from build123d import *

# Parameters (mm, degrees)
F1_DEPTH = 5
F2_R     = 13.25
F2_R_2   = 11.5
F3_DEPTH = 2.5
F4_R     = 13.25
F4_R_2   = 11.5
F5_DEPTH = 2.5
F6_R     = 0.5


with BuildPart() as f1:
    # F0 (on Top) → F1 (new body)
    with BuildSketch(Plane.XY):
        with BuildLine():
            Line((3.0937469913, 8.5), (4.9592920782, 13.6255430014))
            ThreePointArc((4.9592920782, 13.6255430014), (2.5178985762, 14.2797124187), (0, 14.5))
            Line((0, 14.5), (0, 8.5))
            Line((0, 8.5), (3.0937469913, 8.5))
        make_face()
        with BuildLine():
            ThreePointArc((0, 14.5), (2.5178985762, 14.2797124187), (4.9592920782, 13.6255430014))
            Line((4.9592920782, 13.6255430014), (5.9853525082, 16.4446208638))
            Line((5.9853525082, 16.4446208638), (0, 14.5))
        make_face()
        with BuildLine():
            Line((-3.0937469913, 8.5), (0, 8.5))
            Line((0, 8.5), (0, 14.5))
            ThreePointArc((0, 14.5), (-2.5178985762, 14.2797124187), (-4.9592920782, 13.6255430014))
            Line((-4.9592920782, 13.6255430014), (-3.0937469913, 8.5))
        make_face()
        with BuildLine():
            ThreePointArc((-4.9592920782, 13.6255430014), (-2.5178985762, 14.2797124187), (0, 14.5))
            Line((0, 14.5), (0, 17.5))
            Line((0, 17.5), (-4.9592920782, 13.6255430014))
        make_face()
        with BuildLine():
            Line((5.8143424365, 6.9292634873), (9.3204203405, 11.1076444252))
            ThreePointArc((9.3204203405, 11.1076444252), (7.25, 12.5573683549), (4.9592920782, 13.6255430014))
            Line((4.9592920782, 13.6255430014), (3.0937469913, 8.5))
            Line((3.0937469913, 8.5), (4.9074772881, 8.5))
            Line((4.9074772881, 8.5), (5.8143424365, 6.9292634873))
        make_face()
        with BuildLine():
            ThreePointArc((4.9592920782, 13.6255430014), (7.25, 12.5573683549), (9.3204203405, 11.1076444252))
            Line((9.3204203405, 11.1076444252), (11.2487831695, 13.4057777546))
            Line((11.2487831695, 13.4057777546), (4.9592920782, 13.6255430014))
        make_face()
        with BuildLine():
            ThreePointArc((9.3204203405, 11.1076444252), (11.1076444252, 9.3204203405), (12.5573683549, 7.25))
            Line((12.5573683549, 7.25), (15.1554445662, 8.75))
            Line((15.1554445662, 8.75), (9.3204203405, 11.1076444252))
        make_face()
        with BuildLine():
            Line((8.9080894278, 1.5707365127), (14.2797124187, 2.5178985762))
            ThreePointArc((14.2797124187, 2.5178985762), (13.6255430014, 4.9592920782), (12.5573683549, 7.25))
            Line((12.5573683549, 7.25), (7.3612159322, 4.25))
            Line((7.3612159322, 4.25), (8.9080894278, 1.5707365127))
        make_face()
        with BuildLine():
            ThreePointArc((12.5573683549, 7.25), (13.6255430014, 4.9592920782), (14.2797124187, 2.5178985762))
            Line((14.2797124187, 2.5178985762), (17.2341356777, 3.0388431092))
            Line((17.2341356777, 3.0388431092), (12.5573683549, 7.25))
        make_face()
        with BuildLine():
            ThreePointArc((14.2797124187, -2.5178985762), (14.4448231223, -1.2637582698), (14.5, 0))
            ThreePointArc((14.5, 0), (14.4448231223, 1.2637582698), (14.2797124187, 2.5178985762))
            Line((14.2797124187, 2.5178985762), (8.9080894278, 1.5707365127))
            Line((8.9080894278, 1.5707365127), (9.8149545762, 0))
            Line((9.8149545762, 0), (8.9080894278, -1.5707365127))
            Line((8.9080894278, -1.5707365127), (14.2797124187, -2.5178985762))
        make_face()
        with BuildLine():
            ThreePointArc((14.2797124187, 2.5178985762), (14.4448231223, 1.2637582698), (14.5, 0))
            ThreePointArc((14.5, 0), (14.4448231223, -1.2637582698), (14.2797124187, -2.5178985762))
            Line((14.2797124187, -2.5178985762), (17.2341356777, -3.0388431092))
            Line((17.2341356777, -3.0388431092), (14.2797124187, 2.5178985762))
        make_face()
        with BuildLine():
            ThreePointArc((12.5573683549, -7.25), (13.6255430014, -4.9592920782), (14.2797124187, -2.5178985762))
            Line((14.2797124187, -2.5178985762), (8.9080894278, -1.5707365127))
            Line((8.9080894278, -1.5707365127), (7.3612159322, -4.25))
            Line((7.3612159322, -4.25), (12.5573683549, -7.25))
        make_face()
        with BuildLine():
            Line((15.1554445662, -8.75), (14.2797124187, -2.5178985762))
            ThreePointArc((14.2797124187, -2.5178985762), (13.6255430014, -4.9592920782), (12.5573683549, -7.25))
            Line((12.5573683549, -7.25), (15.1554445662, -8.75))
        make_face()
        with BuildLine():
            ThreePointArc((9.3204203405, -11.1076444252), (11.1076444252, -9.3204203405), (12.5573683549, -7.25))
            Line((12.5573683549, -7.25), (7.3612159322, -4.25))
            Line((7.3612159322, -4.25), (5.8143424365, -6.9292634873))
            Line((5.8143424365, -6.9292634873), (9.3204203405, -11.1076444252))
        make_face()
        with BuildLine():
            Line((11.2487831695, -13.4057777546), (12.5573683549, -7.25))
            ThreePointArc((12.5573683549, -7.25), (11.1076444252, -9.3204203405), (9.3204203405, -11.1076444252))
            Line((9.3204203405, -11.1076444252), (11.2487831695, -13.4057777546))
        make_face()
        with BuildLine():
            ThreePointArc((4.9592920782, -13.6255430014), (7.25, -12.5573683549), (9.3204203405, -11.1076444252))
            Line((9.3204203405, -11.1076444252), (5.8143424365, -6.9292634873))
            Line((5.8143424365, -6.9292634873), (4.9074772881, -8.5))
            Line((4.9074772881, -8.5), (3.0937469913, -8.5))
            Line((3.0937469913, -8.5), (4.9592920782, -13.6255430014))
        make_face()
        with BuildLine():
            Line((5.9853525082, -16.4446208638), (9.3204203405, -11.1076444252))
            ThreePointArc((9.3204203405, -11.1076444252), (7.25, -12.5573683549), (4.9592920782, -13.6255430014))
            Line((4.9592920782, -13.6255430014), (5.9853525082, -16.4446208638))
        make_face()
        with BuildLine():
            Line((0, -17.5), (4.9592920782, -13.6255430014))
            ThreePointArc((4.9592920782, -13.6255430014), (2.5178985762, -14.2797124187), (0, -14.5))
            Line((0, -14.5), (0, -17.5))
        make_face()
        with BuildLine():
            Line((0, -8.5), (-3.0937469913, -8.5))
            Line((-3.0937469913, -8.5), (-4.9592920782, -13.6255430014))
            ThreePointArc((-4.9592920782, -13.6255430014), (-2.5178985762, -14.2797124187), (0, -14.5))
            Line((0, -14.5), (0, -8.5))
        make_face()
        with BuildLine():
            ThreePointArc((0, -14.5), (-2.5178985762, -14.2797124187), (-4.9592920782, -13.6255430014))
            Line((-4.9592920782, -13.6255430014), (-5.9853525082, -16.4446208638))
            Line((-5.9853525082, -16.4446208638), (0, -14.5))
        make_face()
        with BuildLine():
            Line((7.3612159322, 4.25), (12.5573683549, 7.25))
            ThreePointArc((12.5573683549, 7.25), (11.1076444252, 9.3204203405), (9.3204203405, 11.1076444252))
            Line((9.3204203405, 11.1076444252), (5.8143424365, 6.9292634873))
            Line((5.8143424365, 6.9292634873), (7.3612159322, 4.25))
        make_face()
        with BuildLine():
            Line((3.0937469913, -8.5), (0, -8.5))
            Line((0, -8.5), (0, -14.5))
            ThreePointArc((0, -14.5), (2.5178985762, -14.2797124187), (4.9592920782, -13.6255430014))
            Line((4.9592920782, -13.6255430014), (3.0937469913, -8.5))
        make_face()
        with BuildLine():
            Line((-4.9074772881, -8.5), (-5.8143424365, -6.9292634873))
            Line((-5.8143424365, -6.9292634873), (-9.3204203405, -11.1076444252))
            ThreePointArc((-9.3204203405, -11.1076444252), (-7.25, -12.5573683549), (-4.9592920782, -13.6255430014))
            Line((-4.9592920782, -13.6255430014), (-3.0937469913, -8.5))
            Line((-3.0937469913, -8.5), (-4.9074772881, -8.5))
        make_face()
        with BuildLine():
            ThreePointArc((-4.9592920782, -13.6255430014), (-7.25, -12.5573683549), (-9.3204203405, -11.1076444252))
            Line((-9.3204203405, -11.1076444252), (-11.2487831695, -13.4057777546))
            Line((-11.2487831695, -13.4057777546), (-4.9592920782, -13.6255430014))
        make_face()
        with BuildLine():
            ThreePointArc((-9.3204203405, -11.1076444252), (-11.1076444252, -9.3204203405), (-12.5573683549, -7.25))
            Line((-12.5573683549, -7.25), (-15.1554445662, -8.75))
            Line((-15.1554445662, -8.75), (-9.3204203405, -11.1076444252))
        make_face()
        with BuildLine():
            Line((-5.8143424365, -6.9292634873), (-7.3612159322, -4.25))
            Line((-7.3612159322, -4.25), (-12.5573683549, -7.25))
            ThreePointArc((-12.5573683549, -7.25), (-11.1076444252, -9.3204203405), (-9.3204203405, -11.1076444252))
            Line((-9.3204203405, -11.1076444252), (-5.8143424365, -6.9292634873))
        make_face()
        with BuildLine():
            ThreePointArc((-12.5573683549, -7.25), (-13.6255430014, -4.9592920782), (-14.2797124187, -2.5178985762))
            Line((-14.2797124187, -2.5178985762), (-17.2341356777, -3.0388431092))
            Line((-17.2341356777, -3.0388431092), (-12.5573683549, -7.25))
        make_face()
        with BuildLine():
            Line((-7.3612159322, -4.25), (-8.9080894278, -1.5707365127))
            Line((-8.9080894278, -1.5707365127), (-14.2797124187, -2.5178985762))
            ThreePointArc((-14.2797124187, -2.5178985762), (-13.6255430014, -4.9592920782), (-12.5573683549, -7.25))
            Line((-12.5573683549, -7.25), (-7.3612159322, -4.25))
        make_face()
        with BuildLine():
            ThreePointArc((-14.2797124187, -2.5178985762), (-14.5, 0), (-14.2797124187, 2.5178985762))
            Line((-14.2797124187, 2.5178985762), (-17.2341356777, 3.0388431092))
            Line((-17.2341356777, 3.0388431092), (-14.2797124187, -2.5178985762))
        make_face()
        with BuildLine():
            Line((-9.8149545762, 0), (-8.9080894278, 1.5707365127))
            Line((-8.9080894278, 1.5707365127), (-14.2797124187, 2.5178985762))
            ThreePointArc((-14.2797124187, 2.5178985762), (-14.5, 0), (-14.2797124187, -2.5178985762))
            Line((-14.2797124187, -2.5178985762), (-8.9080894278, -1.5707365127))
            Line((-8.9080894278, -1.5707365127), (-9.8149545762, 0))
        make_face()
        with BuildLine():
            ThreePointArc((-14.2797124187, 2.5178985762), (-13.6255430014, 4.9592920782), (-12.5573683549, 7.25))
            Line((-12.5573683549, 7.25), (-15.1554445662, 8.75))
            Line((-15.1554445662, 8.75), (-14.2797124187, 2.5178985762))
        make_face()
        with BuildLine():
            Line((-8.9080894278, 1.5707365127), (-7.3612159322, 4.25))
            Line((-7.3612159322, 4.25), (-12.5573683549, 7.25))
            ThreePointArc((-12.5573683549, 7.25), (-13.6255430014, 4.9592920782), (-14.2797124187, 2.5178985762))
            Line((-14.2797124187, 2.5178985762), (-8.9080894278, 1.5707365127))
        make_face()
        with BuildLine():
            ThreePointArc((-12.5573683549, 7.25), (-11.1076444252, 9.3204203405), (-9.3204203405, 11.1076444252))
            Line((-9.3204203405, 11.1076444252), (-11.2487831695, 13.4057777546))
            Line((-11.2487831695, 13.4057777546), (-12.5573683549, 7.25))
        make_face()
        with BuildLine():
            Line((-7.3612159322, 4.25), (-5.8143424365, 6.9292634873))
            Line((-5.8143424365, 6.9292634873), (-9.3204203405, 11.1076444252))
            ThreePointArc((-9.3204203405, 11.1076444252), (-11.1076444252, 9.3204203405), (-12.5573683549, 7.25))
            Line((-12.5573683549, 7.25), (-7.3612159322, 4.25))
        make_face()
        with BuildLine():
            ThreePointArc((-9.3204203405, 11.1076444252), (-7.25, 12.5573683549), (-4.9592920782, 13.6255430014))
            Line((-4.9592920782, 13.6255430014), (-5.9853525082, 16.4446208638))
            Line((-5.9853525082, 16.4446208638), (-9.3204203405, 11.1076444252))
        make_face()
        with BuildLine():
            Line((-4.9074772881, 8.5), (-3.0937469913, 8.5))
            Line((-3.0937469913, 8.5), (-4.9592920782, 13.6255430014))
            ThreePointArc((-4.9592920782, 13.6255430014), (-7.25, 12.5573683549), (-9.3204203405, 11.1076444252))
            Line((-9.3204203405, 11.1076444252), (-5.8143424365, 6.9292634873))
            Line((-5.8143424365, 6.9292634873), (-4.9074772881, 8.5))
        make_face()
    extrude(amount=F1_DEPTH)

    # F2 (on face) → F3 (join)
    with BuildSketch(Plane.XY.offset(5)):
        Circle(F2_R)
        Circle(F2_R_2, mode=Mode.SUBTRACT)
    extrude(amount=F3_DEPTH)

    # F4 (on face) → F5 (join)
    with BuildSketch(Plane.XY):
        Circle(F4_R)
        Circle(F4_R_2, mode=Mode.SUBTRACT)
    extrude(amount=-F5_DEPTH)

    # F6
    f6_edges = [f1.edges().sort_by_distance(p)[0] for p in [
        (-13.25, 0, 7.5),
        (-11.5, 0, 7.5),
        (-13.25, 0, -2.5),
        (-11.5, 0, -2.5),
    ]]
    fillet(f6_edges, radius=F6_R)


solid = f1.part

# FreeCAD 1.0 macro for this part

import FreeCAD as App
import Part
import Sketcher
from FreeCAD import Vector
Q = App.Units.Quantity


def edges_at(feature, points):
    """Names of the edges that pass closest to the given points."""
    edges = feature.Shape.Edges
    near = lambda p: min(range(len(edges)), key=lambda i: edges[i].distToShape(Part.Vertex(*p))[0])
    return sorted({f"Edge{near(p) + 1}" for p in points})


def add_polygon(sketch, points):
    """Adds a closed chain of lines whose ends are joined by coincident constraints."""
    first, n = sketch.GeometryCount, len(points)
    for a, b in zip(points, points[1:] + points[:1]):
        sketch.addGeometry(Part.LineSegment(App.Vector(*a, 0), App.Vector(*b, 0)), False)
    for i in range(n):
        sketch.addConstraint(Sketcher.Constraint("Coincident", first + i, 2, first + (i + 1) % n, 1))

doc = App.newDocument("Part")
params = doc.addObject("Spreadsheet::Sheet", "Params")
for row, (alias, value) in enumerate([
    ("sketch1_height", "3 mm"),
    ("sketch1_length", "3 mm"),
    ("pad1_length", "5 mm"),
    ("sketch2_diameter", "23 mm"),
    ("sketch2_diameter2", "26.5 mm"),
    ("pad2_length", "2.5 mm"),
    ("sketch3_diameter", "23 mm"),
    ("sketch3_diameter2", "26.5 mm"),
    ("pad3_length", "2.5 mm"),
    ("fillet_radius", "0.5 mm"),
], start=1):
    params.set(f"A{row}", alias)
    params.set(f"B{row}", "=" + value)
    params.setAlias(f"B{row}", alias)

body = doc.addObject("PartDesign::Body", "Body")

# Sketch on XY plane
sketch1 = body.newObject("Sketcher::SketchObject", "Sketch")
sketch1.AttachmentSupport = (doc.getObject("XY_Plane"), [""])
sketch1.MapMode = "FlatFace"
add_polygon(sketch1, [(5, 13.6), (6, 16.4), (0, 14.5), (0, 17.5), (-5, 13.6), (-6, 16.4), (-9.3, 11.1), (-11.2, 13.4), (-12.6, 7.2), (-15.2, 8.8), (-14.3, 2.5), (-17.2, 3), (-14.3, -2.5), (-17.2, -3), (-12.6, -7.2), (-15.2, -8.8), (-9.3, -11.1), (-11.2, -13.4), (-5, -13.6), (-6, -16.4), (0, -14.5), (0, -17.5), (5, -13.6), (6, -16.4), (9.3, -11.1), (11.2, -13.4), (12.6, -7.2), (15.2, -8.8), (14.3, -2.5), (17.2, -3), (14.3, 2.5), (17.2, 3), (12.6, 7.2), (15.2, 8.8), (9.3, 11.1), (11.2, 13.4)])  # lines 0-35
add_polygon(sketch1, [(4.9, 8.5), (5.8, 6.9), (7.4, 4.2), (8.9, 1.6), (9.8, 0), (8.9, -1.6), (7.4, -4.2), (5.8, -6.9), (4.9, -8.5), (-4.9, -8.5), (-5.8, -6.9), (-7.4, -4.2), (-8.9, -1.6), (-9.8, 0), (-8.9, 1.6), (-7.4, 4.2), (-5.8, 6.9), (-4.9, 8.5)])  # lines 36-53
sketch1.addConstraint(Sketcher.Constraint("Vertical", 2))
sketch1.addConstraint(Sketcher.Constraint("Vertical", 20))
sketch1.addConstraint(Sketcher.Constraint("Horizontal", 44))
sketch1.addConstraint(Sketcher.Constraint("Horizontal", 53))
sketch1.addConstraint(Sketcher.Constraint("Symmetric", 0, 2, 18, 2, -1, 1))
sketch1.addConstraint(Sketcher.Constraint("Symmetric", 1, 2, 19, 2, -1, 1))
sketch1.addConstraint(Sketcher.Constraint("Symmetric", 3, 2, 21, 2, -1, 1))
sketch1.addConstraint(Sketcher.Constraint("Symmetric", 4, 2, 22, 2, -1, 1))
sketch1.addConstraint(Sketcher.Constraint("Symmetric", 5, 2, 23, 2, -1, 1))
sketch1.addConstraint(Sketcher.Constraint("Symmetric", 6, 2, 24, 2, -1, 1))
sketch1.addConstraint(Sketcher.Constraint("Symmetric", 7, 2, 25, 2, -1, 1))
sketch1.addConstraint(Sketcher.Constraint("Symmetric", 8, 2, 26, 2, -1, 1))
sketch1.addConstraint(Sketcher.Constraint("Symmetric", 9, 2, 27, 2, -1, 1))
sketch1.addConstraint(Sketcher.Constraint("Symmetric", 10, 2, 28, 2, -1, 1))
sketch1.addConstraint(Sketcher.Constraint("Symmetric", 11, 2, 29, 2, -1, 1))
sketch1.addConstraint(Sketcher.Constraint("Symmetric", 12, 2, 30, 2, -1, 1))
sketch1.addConstraint(Sketcher.Constraint("Symmetric", 13, 2, 31, 2, -1, 1))
sketch1.addConstraint(Sketcher.Constraint("Symmetric", 14, 2, 32, 2, -1, 1))
sketch1.addConstraint(Sketcher.Constraint("Symmetric", 15, 2, 33, 2, -1, 1))
sketch1.addConstraint(Sketcher.Constraint("Symmetric", 16, 2, 34, 2, -1, 1))
sketch1.addConstraint(Sketcher.Constraint("Symmetric", 17, 2, 35, 2, -1, 1))
sketch1.addConstraint(Sketcher.Constraint("Symmetric", 36, 2, 45, 2, -1, 1))
sketch1.addConstraint(Sketcher.Constraint("Symmetric", 37, 2, 46, 2, -1, 1))
sketch1.addConstraint(Sketcher.Constraint("Symmetric", 38, 2, 47, 2, -1, 1))
sketch1.addConstraint(Sketcher.Constraint("Symmetric", 39, 2, 48, 2, -1, 1))
sketch1.addConstraint(Sketcher.Constraint("Symmetric", 40, 2, 49, 2, -1, 1))
sketch1.addConstraint(Sketcher.Constraint("Symmetric", 41, 2, 50, 2, -1, 1))
sketch1.addConstraint(Sketcher.Constraint("Symmetric", 42, 2, 51, 2, -1, 1))
sketch1.addConstraint(Sketcher.Constraint("Symmetric", 43, 2, 52, 2, -1, 1))
sketch1.addConstraint(Sketcher.Constraint("Symmetric", 0, 2, 4, 2, -2))
sketch1.addConstraint(Sketcher.Constraint("Symmetric", 17, 2, 21, 2, -2))
sketch1.addConstraint(Sketcher.Constraint("Symmetric", 15, 2, 23, 2, -2))
sketch1.addConstraint(Sketcher.Constraint("Symmetric", 16, 2, 24, 2, -2))
sketch1.addConstraint(Sketcher.Constraint("Symmetric", 13, 2, 25, 2, -2))
sketch1.addConstraint(Sketcher.Constraint("Symmetric", 14, 2, 26, 2, -2))
sketch1.addConstraint(Sketcher.Constraint("Symmetric", 11, 2, 27, 2, -2))
sketch1.addConstraint(Sketcher.Constraint("Symmetric", 12, 2, 28, 2, -2))
sketch1.addConstraint(Sketcher.Constraint("Symmetric", 42, 2, 45, 2, -2))
sketch1.addConstraint(Sketcher.Constraint("Symmetric", 41, 2, 46, 2, -2))
sketch1.addConstraint(Sketcher.Constraint("Symmetric", 40, 2, 47, 2, -2))
sketch1.addConstraint(Sketcher.Constraint("Symmetric", 2, 2, 20, 2, -1))
sketch1.addConstraint(Sketcher.Constraint("PointOnObject", 39, 2, -1))
sketch1.addConstraint(Sketcher.Constraint("Perpendicular", 32, 36))
sketch1.addConstraint(Sketcher.Constraint("Parallel", 36, 37))
sketch1.addConstraint(Sketcher.Constraint("Parallel", 37, 38))
sketch1.addConstraint(Sketcher.Constraint("Parallel", 38, 39))
sketch1.addConstraint(Sketcher.Constraint("Parallel", 42, 43))
sketch1.addConstraint(Sketcher.Constraint("Parallel", 39, 45))
sketch1.addConstraint(Sketcher.Constraint("Equal", 1, 3))
sketch1.addConstraint(Sketcher.Constraint("Equal", 3, 5))
sketch1.addConstraint(Sketcher.Constraint("Equal", 4, 6))
sketch1.addConstraint(Sketcher.Constraint("Equal", 5, 7))
sketch1.addConstraint(Sketcher.Constraint("Equal", 6, 8))
sketch1.addConstraint(Sketcher.Constraint("Equal", 7, 9))
sketch1.addConstraint(Sketcher.Constraint("Equal", 8, 10))
sketch1.addConstraint(Sketcher.Constraint("Equal", 9, 11))
sketch1.addConstraint(Sketcher.Constraint("Equal", 11, 13))
sketch1.addConstraint(Sketcher.Constraint("Equal", 13, 15))
sketch1.addConstraint(Sketcher.Constraint("Equal", 15, 17))
sketch1.addConstraint(Sketcher.Constraint("Equal", 37, 38))
sketch1.addConstraint(Sketcher.Constraint("Equal", 36, 39))
sketch1.addConstraint(Sketcher.Constraint("DistanceY", 2, 1, 2, 2, Q("3 mm")))
sketch1.addConstraint(Sketcher.Constraint("Angle", 0, Q("70 deg")))
sketch1.addConstraint(Sketcher.Constraint("Angle", 6, Q("130 deg")))
sketch1.addConstraint(Sketcher.Constraint("Angle", 8, Q("150 deg")))
sketch1.addConstraint(Sketcher.Constraint("Angle", 10, Q("170 deg")))
sketch1.addConstraint(Sketcher.Constraint("Distance", 0, Q("3 mm")))
sketch1.addConstraint(Sketcher.Constraint("DistanceY", 37, 2, 31, 2, Q("3 mm")))
sketch1.addConstraint(Sketcher.Constraint("DistanceY", -1, 1, 1, 2, Q("14.5 mm")))
sketch1.addConstraint(Sketcher.Constraint("Distance", 36, Q("1.81373 mm")))
sketch1.addConstraint(Sketcher.Constraint("DistanceX", 44, 2, 44, 1, Q("9.814955 mm")))
sketch1.setExpression("Constraints[115]", "Params.sketch1_height")
sketch1.setExpression("Constraints[120]", "Params.sketch1_length")
pad1 = body.newObject("PartDesign::Pad", "Pad")
pad1.Profile = sketch1
pad1.setExpression("Length", "Params.pad1_length")

# Sketch on XY plane
sketch2 = body.newObject("Sketcher::SketchObject", "Sketch001")
sketch2.AttachmentSupport = (doc.getObject("XY_Plane"), [""])
sketch2.MapMode = "FlatFace"
sketch2.AttachmentOffset = App.Placement(Vector(0, 0, 5), App.Rotation())
sketch2.addGeometry(Part.Circle(Vector(0, 0, 0), Vector(0, 0, 1), 13), False)
sketch2.addGeometry(Part.Circle(Vector(0, 0, 0), Vector(0, 0, 1), 12), False)
sketch2.addConstraint(Sketcher.Constraint("Coincident", 0, 3, -1, 1))
sketch2.addConstraint(Sketcher.Constraint("Coincident", 1, 3, -1, 1))
sketch2.addConstraint(Sketcher.Constraint("Diameter", 1, Q("23 mm")))
sketch2.addConstraint(Sketcher.Constraint("Diameter", 0, Q("26.5 mm")))
sketch2.setExpression("Constraints[2]", "Params.sketch2_diameter")
sketch2.setExpression("Constraints[3]", "Params.sketch2_diameter2")
pad2 = body.newObject("PartDesign::Pad", "Pad001")
pad2.Profile = sketch2
pad2.setExpression("Length", "Params.pad2_length")

# Sketch on XY plane
sketch3 = body.newObject("Sketcher::SketchObject", "Sketch002")
sketch3.AttachmentSupport = (doc.getObject("XY_Plane"), [""])
sketch3.MapMode = "FlatFace"
sketch3.addGeometry(Part.Circle(Vector(0, 0, 0), Vector(0, 0, 1), 13), False)
sketch3.addGeometry(Part.Circle(Vector(0, 0, 0), Vector(0, 0, 1), 12), False)
sketch3.addConstraint(Sketcher.Constraint("Coincident", 0, 3, -1, 1))
sketch3.addConstraint(Sketcher.Constraint("Coincident", 1, 3, -1, 1))
sketch3.addConstraint(Sketcher.Constraint("Diameter", 1, Q("23 mm")))
sketch3.addConstraint(Sketcher.Constraint("Diameter", 0, Q("26.5 mm")))
sketch3.setExpression("Constraints[2]", "Params.sketch3_diameter")
sketch3.setExpression("Constraints[3]", "Params.sketch3_diameter2")
pad3 = body.newObject("PartDesign::Pad", "Pad002")
pad3.Profile = sketch3
pad3.setExpression("Length", "Params.pad3_length")
pad3.Reversed = True
doc.recompute()

fillet = body.newObject("PartDesign::Fillet", "Fillet")
fillet.Base = (pad3, edges_at(pad3, [
    (-13.25, 0, 7.5),
    (-11.5, 0, 7.5),
    (-13.25, 0, -2.5),
    (-11.5, 0, -2.5),
]))
fillet.setExpression("Radius", "Params.fillet_radius")

doc.recompute()
